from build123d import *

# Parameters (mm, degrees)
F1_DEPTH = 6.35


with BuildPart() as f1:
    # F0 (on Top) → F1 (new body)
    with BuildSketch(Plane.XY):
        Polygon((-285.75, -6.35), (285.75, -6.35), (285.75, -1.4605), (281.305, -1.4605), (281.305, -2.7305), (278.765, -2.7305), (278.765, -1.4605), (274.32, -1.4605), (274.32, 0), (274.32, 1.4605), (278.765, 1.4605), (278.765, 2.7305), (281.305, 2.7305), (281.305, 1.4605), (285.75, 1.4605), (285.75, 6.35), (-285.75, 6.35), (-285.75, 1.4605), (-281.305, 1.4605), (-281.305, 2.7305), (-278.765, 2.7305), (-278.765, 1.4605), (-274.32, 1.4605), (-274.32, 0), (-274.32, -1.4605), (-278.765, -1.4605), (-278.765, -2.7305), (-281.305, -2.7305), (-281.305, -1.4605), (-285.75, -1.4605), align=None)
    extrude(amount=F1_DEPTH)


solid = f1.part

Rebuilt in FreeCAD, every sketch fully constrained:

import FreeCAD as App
import Part
import Sketcher
Q = App.Units.Quantity

doc = App.newDocument("Part")
params = doc.addObject("Spreadsheet::Sheet", "Params")
for row, (alias, value) in enumerate([
    ("sketch1_width", "22.5 in"),
    ("sketch1_width2", "0.1 in"),
    ("sketch1_height", "0.05 in"),
    ("sketch1_height2", "0.115 in"),
    ("pad1_length", "0.25 in"),
], start=1):
    params.set(f"A{row}", alias)
    params.set(f"B{row}", "=" + value)
    params.setAlias(f"B{row}", alias)

body = doc.addObject("PartDesign::Body", "Body")

sketch1 = body.newObject("Sketcher::SketchObject", "Sketch")
sketch1.AttachmentSupport = (doc.getObject("XY_Plane"), [""])
sketch1.MapMode = "FlatFace"
sketch1.addGeometry(Part.LineSegment(App.Vector(-285.8, -6.3, 0), App.Vector(285.8, -6.3, 0)), False)
sketch1.addGeometry(Part.LineSegment(App.Vector(285.8, -6.3, 0), App.Vector(285.8, -1.5, 0)), False)
sketch1.addGeometry(Part.LineSegment(App.Vector(285.8, -1.5, 0), App.Vector(281.3, -1.5, 0)), False)
sketch1.addGeometry(Part.LineSegment(App.Vector(281.3, -1.5, 0), App.Vector(281.3, -2.7, 0)), False)
sketch1.addGeometry(Part.LineSegment(App.Vector(281.3, -2.7, 0), App.Vector(278.8, -2.7, 0)), False)
sketch1.addGeometry(Part.LineSegment(App.Vector(278.8, -2.7, 0), App.Vector(278.8, -1.5, 0)), False)
sketch1.addGeometry(Part.LineSegment(App.Vector(278.8, -1.5, 0), App.Vector(274.3, -1.5, 0)), False)
sketch1.addGeometry(Part.LineSegment(App.Vector(274.3, -1.5, 0), App.Vector(274.3, 1.5, 0)), False)
sketch1.addGeometry(Part.LineSegment(App.Vector(274.3, 1.5, 0), App.Vector(278.8, 1.5, 0)), False)
sketch1.addGeometry(Part.LineSegment(App.Vector(278.8, 1.5, 0), App.Vector(278.8, 2.7, 0)), False)
sketch1.addGeometry(Part.LineSegment(App.Vector(278.8, 2.7, 0), App.Vector(281.3, 2.7, 0)), False)
sketch1.addGeometry(Part.LineSegment(App.Vector(281.3, 2.7, 0), App.Vector(281.3, 1.5, 0)), False)
sketch1.addGeometry(Part.LineSegment(App.Vector(281.3, 1.5, 0), App.Vector(285.8, 1.5, 0)), False)
sketch1.addGeometry(Part.LineSegment(App.Vector(285.8, 1.5, 0), App.Vector(285.8, 6.3, 0)), False)
sketch1.addGeometry(Part.LineSegment(App.Vector(285.8, 6.3, 0), App.Vector(-285.8, 6.3, 0)), False)
sketch1.addGeometry(Part.LineSegment(App.Vector(-285.8, 6.3, 0), App.Vector(-285.8, 1.5, 0)), False)
sketch1.addGeometry(Part.LineSegment(App.Vector(-285.8, 1.5, 0), App.Vector(-281.3, 1.5, 0)), False)
sketch1.addGeometry(Part.LineSegment(App.Vector(-281.3, 1.5, 0), App.Vector(-281.3, 2.7, 0)), False)
sketch1.addGeometry(Part.LineSegment(App.Vector(-281.3, 2.7, 0), App.Vector(-278.8, 2.7, 0)), False)
sketch1.addGeometry(Part.LineSegment(App.Vector(-278.8, 2.7, 0), App.Vector(-278.8, 1.5, 0)), False)
sketch1.addGeometry(Part.LineSegment(App.Vector(-278.8, 1.5, 0), App.Vector(-274.3, 1.5, 0)), False)
sketch1.addGeometry(Part.LineSegment(App.Vector(-274.3, 1.5, 0), App.Vector(-274.3, -1.5, 0)), False)
sketch1.addGeometry(Part.LineSegment(App.Vector(-274.3, -1.5, 0), App.Vector(-278.8, -1.5, 0)), False)
sketch1.addGeometry(Part.LineSegment(App.Vector(-278.8, -1.5, 0), App.Vector(-278.8, -2.7, 0)), False)
sketch1.addGeometry(Part.LineSegment(App.Vector(-278.8, -2.7, 0), App.Vector(-281.3, -2.7, 0)), False)
sketch1.addGeometry(Part.LineSegment(App.Vector(-281.3, -2.7, 0), App.Vector(-281.3, -1.5, 0)), False)
sketch1.addGeometry(Part.LineSegment(App.Vector(-281.3, -1.5, 0), App.Vector(-285.8, -1.5, 0)), False)
sketch1.addGeometry(Part.LineSegment(App.Vector(-285.8, -1.5, 0), App.Vector(-285.8, -6.3, 0)), False)
sketch1.addConstraint(Sketcher.Constraint("Coincident", 0, 2, 1, 1))
sketch1.addConstraint(Sketcher.Constraint("Coincident", 1, 2, 2, 1))
sketch1.addConstraint(Sketcher.Constraint("Coincident", 2, 2, 3, 1))
sketch1.addConstraint(Sketcher.Constraint("Coincident", 3, 2, 4, 1))
sketch1.addConstraint(Sketcher.Constraint("Coincident", 4, 2, 5, 1))
sketch1.addConstraint(Sketcher.Constraint("Coincident", 5, 2, 6, 1))
sketch1.addConstraint(Sketcher.Constraint("Coincident", 6, 2, 7, 1))
sketch1.addConstraint(Sketcher.Constraint("Coincident", 7, 2, 8, 1))
sketch1.addConstraint(Sketcher.Constraint("Coincident", 8, 2, 9, 1))
sketch1.addConstraint(Sketcher.Constraint("Coincident", 9, 2, 10, 1))
sketch1.addConstraint(Sketcher.Constraint("Coincident", 10, 2, 11, 1))
sketch1.addConstraint(Sketcher.Constraint("Coincident", 11, 2, 12, 1))
sketch1.addConstraint(Sketcher.Constraint("Coincident", 12, 2, 13, 1))
sketch1.addConstraint(Sketcher.Constraint("Coincident", 13, 2, 14, 1))
sketch1.addConstraint(Sketcher.Constraint("Coincident", 14, 2, 15, 1))
sketch1.addConstraint(Sketcher.Constraint("Coincident", 15, 2, 16, 1))
sketch1.addConstraint(Sketcher.Constraint("Coincident", 16, 2, 17, 1))
sketch1.addConstraint(Sketcher.Constraint("Coincident", 17, 2, 18, 1))
sketch1.addConstraint(Sketcher.Constraint("Coincident", 18, 2, 19, 1))
sketch1.addConstraint(Sketcher.Constraint("Coincident", 19, 2, 20, 1))
sketch1.addConstraint(Sketcher.Constraint("Coincident", 20, 2, 21, 1))
sketch1.addConstraint(Sketcher.Constraint("Coincident", 21, 2, 22, 1))
sketch1.addConstraint(Sketcher.Constraint("Coincident", 22, 2, 23, 1))
sketch1.addConstraint(Sketcher.Constraint("Coincident", 23, 2, 24, 1))
sketch1.addConstraint(Sketcher.Constraint("Coincident", 24, 2, 25, 1))
sketch1.addConstraint(Sketcher.Constraint("Coincident", 25, 2, 26, 1))
sketch1.addConstraint(Sketcher.Constraint("Coincident", 26, 2, 27, 1))
sketch1.addConstraint(Sketcher.Constraint("Coincident", 27, 2, 0, 1))
sketch1.addConstraint(Sketcher.Constraint("Horizontal", 0))
sketch1.addConstraint(Sketcher.Constraint("Vertical", 1))
sketch1.addConstraint(Sketcher.Constraint("Horizontal", 2))
sketch1.addConstraint(Sketcher.Constraint("Vertical", 3))
sketch1.addConstraint(Sketcher.Constraint("Horizontal", 4))
sketch1.addConstraint(Sketcher.Constraint("Vertical", 5))
sketch1.addConstraint(Sketcher.Constraint("Horizontal", 6))
sketch1.addConstraint(Sketcher.Constraint("Vertical", 7))
sketch1.addConstraint(Sketcher.Constraint("Horizontal", 8))
sketch1.addConstraint(Sketcher.Constraint("Vertical", 9))
sketch1.addConstraint(Sketcher.Constraint("Horizontal", 10))
sketch1.addConstraint(Sketcher.Constraint("Vertical", 11))
sketch1.addConstraint(Sketcher.Constraint("Horizontal", 12))
sketch1.addConstraint(Sketcher.Constraint("Vertical", 13))
sketch1.addConstraint(Sketcher.Constraint("Horizontal", 14))
sketch1.addConstraint(Sketcher.Constraint("Vertical", 15))
sketch1.addConstraint(Sketcher.Constraint("Horizontal", 16))
sketch1.addConstraint(Sketcher.Constraint("Vertical", 17))
sketch1.addConstraint(Sketcher.Constraint("Horizontal", 18))
sketch1.addConstraint(Sketcher.Constraint("Vertical", 19))
sketch1.addConstraint(Sketcher.Constraint("Horizontal", 20))
sketch1.addConstraint(Sketcher.Constraint("Vertical", 21))
sketch1.addConstraint(Sketcher.Constraint("Horizontal", 22))
sketch1.addConstraint(Sketcher.Constraint("Vertical", 23))
sketch1.addConstraint(Sketcher.Constraint("Horizontal", 24))
sketch1.addConstraint(Sketcher.Constraint("Vertical", 25))
sketch1.addConstraint(Sketcher.Constraint("Horizontal", 26))
sketch1.addConstraint(Sketcher.Constraint("Vertical", 27))
sketch1.addConstraint(Sketcher.Constraint("Symmetric", 0, 2, 14, 2, -1, 1))
sketch1.addConstraint(Sketcher.Constraint("Symmetric", 2, 2, 16, 2, -1, 1))
sketch1.addConstraint(Sketcher.Constraint("Symmetric", 4, 2, 18, 2, -1, 1))
sketch1.addConstraint(Sketcher.Constraint("Symmetric", 6, 2, 20, 2, -1, 1))
sketch1.addConstraint(Sketcher.Constraint("Symmetric", 8, 2, 22, 2, -1, 1))
sketch1.addConstraint(Sketcher.Constraint("Symmetric", 10, 2, 24, 2, -1, 1))
sketch1.addConstraint(Sketcher.Constraint("Symmetric", 12, 2, 26, 2, -1, 1))
sketch1.addConstraint(Sketcher.Constraint("Symmetric", 12, 2, 15, 2, -2))
sketch1.addConstraint(Sketcher.Constraint("Symmetric", 10, 2, 17, 2, -2))
sketch1.addConstraint(Sketcher.Constraint("Symmetric", 8, 2, 19, 2, -2))
sketch1.addConstraint(Sketcher.Constraint("Horizontal", 2, 2, 5, 2))
sketch1.addConstraint(Sketcher.Constraint("Equal", 2, 6))
sketch1.addConstraint(Sketcher.Constraint("DistanceX", 0, 1, 0, 2, Q("22.5 in")))
sketch1.addConstraint(Sketcher.Constraint("DistanceX", 4, 2, 4, 1, Q("0.1 in")))
sketch1.addConstraint(Sketcher.Constraint("DistanceY", 3, 2, 3, 1, Q("0.05 in")))
sketch1.addConstraint(Sketcher.Constraint("DistanceX", -1, 1, 6, 2, Q("10.8 in")))
sketch1.addConstraint(Sketcher.Constraint("DistanceY", 7, 1, 7, 2, Q("0.115 in")))
sketch1.addConstraint(Sketcher.Constraint("DistanceY", 0, 2, -1, 1, Q("0.25 in")))
sketch1.setExpression("Constraints[68]", "Params.sketch1_width")
sketch1.setExpression("Constraints[69]", "Params.sketch1_width2")
sketch1.setExpression("Constraints[70]", "Params.sketch1_height")
sketch1.setExpression("Constraints[72]", "Params.sketch1_height2")
pad1 = body.newObject("PartDesign::Pad", "Pad")
pad1.Profile = sketch1
pad1.setExpression("Length", "Params.pad1_length")

doc.recompute()
